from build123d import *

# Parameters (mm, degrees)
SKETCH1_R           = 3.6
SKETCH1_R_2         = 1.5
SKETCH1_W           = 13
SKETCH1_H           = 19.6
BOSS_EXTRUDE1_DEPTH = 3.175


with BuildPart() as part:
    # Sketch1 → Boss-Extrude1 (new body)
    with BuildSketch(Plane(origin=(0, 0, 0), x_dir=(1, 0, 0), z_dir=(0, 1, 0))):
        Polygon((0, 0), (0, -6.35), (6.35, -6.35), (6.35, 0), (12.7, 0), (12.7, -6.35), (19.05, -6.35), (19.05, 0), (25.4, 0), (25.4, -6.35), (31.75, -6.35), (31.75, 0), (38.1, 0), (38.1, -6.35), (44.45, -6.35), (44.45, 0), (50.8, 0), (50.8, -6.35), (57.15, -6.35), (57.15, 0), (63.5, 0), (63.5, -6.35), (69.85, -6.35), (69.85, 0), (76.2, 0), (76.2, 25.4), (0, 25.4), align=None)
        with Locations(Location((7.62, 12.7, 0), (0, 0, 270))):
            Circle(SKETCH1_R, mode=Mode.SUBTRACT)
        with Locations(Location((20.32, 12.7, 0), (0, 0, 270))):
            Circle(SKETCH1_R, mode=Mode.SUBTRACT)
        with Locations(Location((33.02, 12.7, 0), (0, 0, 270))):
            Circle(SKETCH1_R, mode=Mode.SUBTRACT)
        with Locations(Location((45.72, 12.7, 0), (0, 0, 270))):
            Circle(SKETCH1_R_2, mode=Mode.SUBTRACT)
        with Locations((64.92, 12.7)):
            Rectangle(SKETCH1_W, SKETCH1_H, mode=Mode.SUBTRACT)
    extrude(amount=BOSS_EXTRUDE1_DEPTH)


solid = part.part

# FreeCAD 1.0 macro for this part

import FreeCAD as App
import Part
import Sketcher

V = App.Vector
Q = App.Units.Quantity


def add_polygon(sketch, points):
    """Adds a closed chain of lines whose ends are joined by coincident constraints."""
    first, n = sketch.GeometryCount, len(points)
    for a, b in zip(points, points[1:] + points[:1]):
        sketch.addGeometry(Part.LineSegment(App.Vector(*a, 0), App.Vector(*b, 0)), False)
    for i in range(n):
        sketch.addConstraint(Sketcher.Constraint("Coincident", first + i, 2, first + (i + 1) % n, 1))

doc = App.newDocument("Part")
body = doc.addObject("PartDesign::Body", "Body")

sketch1 = body.newObject("Sketcher::SketchObject", "Sketch")
sketch1.AttachmentSupport = (doc.getObject("XZ_Plane"), [""])
sketch1.MapMode = "FlatFace"
add_polygon(sketch1, [(0, 6.35), (6.35, 6.35), (6.35, 0), (12.7, 0), (12.7, 6.35), (19.05, 6.35), (19.05, 0), (25.4, 0), (25.4, 6.35), (31.75, 6.35), (31.75, 0), (38.1, 0), (38.1, 6.35), (44.45, 6.35), (44.45, 0), (50.8, 0), (50.8, 6.35), (57.15, 6.35), (57.15, 0), (63.5, 0), (63.5, 6.35), (69.85, 6.35), (69.85, 0), (76.2, 0), (76.2, -25.4), (0, -25.4)])
sketch1.addGeometry(Part.Circle(V(7.62, -12.7, 0), V(0, 0, 1), 3.6), False)
sketch1.addGeometry(Part.Circle(V(20.32, -12.7, 0), V(0, 0, 1), 3.6), False)
sketch1.addGeometry(Part.Circle(V(33.02, -12.7, 0), V(0, 0, 1), 3.6), False)
sketch1.addGeometry(Part.Circle(V(45.72, -12.7, 0), V(0, 0, 1), 1.5), False)
add_polygon(sketch1, [(71.42, -2.9), (58.42, -2.9), (58.42, -22.5), (71.42, -22.5)])
sketch1.addConstraint(Sketcher.Constraint("Horizontal", 0))
sketch1.addConstraint(Sketcher.Constraint("Vertical", 1))
sketch1.addConstraint(Sketcher.Constraint("Horizontal", 2))
sketch1.addConstraint(Sketcher.Constraint("Vertical", 3))
sketch1.addConstraint(Sketcher.Constraint("Horizontal", 4))
sketch1.addConstraint(Sketcher.Constraint("Vertical", 5))
sketch1.addConstraint(Sketcher.Constraint("Horizontal", 6))
sketch1.addConstraint(Sketcher.Constraint("Vertical", 7))
sketch1.addConstraint(Sketcher.Constraint("Horizontal", 8))
sketch1.addConstraint(Sketcher.Constraint("Vertical", 9))
sketch1.addConstraint(Sketcher.Constraint("Horizontal", 10))
sketch1.addConstraint(Sketcher.Constraint("Vertical", 11))
sketch1.addConstraint(Sketcher.Constraint("Horizontal", 12))
sketch1.addConstraint(Sketcher.Constraint("Vertical", 13))
sketch1.addConstraint(Sketcher.Constraint("Horizontal", 14))
sketch1.addConstraint(Sketcher.Constraint("Vertical", 15))
sketch1.addConstraint(Sketcher.Constraint("Horizontal", 16))
sketch1.addConstraint(Sketcher.Constraint("Vertical", 17))
sketch1.addConstraint(Sketcher.Constraint("Horizontal", 18))
sketch1.addConstraint(Sketcher.Constraint("Vertical", 19))
sketch1.addConstraint(Sketcher.Constraint("Horizontal", 20))
sketch1.addConstraint(Sketcher.Constraint("Vertical", 21))
sketch1.addConstraint(Sketcher.Constraint("Horizontal", 22))
sketch1.addConstraint(Sketcher.Constraint("Vertical", 23))
sketch1.addConstraint(Sketcher.Constraint("Horizontal", 24))
sketch1.addConstraint(Sketcher.Constraint("Vertical", 25))
sketch1.addConstraint(Sketcher.Constraint("Horizontal", 30))
sketch1.addConstraint(Sketcher.Constraint("Vertical", 31))
sketch1.addConstraint(Sketcher.Constraint("Horizontal", 32))
sketch1.addConstraint(Sketcher.Constraint("Vertical", 33))
sketch1.addConstraint(Sketcher.Constraint("Equal", 26, 27))
sketch1.addConstraint(Sketcher.Constraint("Equal", 27, 28))
sketch1.addConstraint(Sketcher.Constraint("PointOnObject", 1, 2, -1))
sketch1.addConstraint(Sketcher.Constraint("PointOnObject", 5, 2, -1))
sketch1.addConstraint(Sketcher.Constraint("PointOnObject", 9, 2, -1))
sketch1.addConstraint(Sketcher.Constraint("PointOnObject", 13, 2, -1))
sketch1.addConstraint(Sketcher.Constraint("PointOnObject", 17, 2, -1))
sketch1.addConstraint(Sketcher.Constraint("PointOnObject", 21, 2, -1))
sketch1.addConstraint(Sketcher.Constraint("PointOnObject", 24, 2, -2))
sketch1.addConstraint(Sketcher.Constraint("Horizontal", 26, 3, 27, 3))
sketch1.addConstraint(Sketcher.Constraint("Horizontal", 27, 3, 28, 3))
sketch1.addConstraint(Sketcher.Constraint("Horizontal", 28, 3, 29, 3))
sketch1.addConstraint(Sketcher.Constraint("Horizontal", 0, 2, 3, 2))
sketch1.addConstraint(Sketcher.Constraint("Horizontal", 4, 2, 7, 2))
sketch1.addConstraint(Sketcher.Constraint("Horizontal", 8, 2, 11, 2))
sketch1.addConstraint(Sketcher.Constraint("Horizontal", 12, 2, 15, 2))
sketch1.addConstraint(Sketcher.Constraint("Horizontal", 16, 2, 19, 2))
sketch1.addConstraint(Sketcher.Constraint("Equal", 0, 2))
sketch1.addConstraint(Sketcher.Constraint("Equal", 2, 4))
sketch1.addConstraint(Sketcher.Constraint("Equal", 4, 6))
sketch1.addConstraint(Sketcher.Constraint("Equal", 6, 8))
sketch1.addConstraint(Sketcher.Constraint("Equal", 8, 10))
sketch1.addConstraint(Sketcher.Constraint("Equal", 10, 12))
sketch1.addConstraint(Sketcher.Constraint("Equal", 12, 14))
sketch1.addConstraint(Sketcher.Constraint("Equal", 14, 16))
sketch1.addConstraint(Sketcher.Constraint("Equal", 16, 18))
sketch1.addConstraint(Sketcher.Constraint("Equal", 18, 20))
sketch1.addConstraint(Sketcher.Constraint("Equal", 20, 22))
sketch1.addConstraint(Sketcher.Constraint("Equal", 22, 1))
sketch1.addConstraint(Sketcher.Constraint("DistanceX", 24, 2, 24, 1, Q("3 in")))
sketch1.addConstraint(Sketcher.Constraint("DistanceY", 23, 2, 23, 1, Q("1 in")))
sketch1.addConstraint(Sketcher.Constraint("DistanceX", 26, 3, 28, 3, Q("1 in")))
sketch1.addConstraint(Sketcher.Constraint("DistanceX", 27, 3, 29, 3, Q("1 in")))
sketch1.addConstraint(Sketcher.Constraint("DistanceX", -1, 1, 26, 3, Q("0.3 in")))
sketch1.addConstraint(Sketcher.Constraint("DistanceY", 26, 3, -1, 1, Q("0.5 in")))
sketch1.addConstraint(Sketcher.Constraint("DistanceX", -1, 1, 27, 3, Q("0.8 in")))
sketch1.addConstraint(Sketcher.Constraint("DistanceX", -1, 1, 30, 2, Q("2.3 in")))
sketch1.addConstraint(Sketcher.Constraint("Diameter", 26, Q("7.2 mm")))
sketch1.addConstraint(Sketcher.Constraint("Diameter", 29, Q("3 mm")))
sketch1.addConstraint(Sketcher.Constraint("DistanceX", 30, 2, 30, 1, Q("13 mm")))
sketch1.addConstraint(Sketcher.Constraint("DistanceY", 31, 2, 31, 1, Q("19.6 mm")))
sketch1.addConstraint(Sketcher.Constraint("DistanceY", 30, 2, -1, 1, Q("2.9 mm")))
pad1 = body.newObject("PartDesign::Pad", "Pad")
pad1.Profile = sketch1
pad1.Length = Q("0.125 in")
pad1.Reversed = True

doc.recompute()
